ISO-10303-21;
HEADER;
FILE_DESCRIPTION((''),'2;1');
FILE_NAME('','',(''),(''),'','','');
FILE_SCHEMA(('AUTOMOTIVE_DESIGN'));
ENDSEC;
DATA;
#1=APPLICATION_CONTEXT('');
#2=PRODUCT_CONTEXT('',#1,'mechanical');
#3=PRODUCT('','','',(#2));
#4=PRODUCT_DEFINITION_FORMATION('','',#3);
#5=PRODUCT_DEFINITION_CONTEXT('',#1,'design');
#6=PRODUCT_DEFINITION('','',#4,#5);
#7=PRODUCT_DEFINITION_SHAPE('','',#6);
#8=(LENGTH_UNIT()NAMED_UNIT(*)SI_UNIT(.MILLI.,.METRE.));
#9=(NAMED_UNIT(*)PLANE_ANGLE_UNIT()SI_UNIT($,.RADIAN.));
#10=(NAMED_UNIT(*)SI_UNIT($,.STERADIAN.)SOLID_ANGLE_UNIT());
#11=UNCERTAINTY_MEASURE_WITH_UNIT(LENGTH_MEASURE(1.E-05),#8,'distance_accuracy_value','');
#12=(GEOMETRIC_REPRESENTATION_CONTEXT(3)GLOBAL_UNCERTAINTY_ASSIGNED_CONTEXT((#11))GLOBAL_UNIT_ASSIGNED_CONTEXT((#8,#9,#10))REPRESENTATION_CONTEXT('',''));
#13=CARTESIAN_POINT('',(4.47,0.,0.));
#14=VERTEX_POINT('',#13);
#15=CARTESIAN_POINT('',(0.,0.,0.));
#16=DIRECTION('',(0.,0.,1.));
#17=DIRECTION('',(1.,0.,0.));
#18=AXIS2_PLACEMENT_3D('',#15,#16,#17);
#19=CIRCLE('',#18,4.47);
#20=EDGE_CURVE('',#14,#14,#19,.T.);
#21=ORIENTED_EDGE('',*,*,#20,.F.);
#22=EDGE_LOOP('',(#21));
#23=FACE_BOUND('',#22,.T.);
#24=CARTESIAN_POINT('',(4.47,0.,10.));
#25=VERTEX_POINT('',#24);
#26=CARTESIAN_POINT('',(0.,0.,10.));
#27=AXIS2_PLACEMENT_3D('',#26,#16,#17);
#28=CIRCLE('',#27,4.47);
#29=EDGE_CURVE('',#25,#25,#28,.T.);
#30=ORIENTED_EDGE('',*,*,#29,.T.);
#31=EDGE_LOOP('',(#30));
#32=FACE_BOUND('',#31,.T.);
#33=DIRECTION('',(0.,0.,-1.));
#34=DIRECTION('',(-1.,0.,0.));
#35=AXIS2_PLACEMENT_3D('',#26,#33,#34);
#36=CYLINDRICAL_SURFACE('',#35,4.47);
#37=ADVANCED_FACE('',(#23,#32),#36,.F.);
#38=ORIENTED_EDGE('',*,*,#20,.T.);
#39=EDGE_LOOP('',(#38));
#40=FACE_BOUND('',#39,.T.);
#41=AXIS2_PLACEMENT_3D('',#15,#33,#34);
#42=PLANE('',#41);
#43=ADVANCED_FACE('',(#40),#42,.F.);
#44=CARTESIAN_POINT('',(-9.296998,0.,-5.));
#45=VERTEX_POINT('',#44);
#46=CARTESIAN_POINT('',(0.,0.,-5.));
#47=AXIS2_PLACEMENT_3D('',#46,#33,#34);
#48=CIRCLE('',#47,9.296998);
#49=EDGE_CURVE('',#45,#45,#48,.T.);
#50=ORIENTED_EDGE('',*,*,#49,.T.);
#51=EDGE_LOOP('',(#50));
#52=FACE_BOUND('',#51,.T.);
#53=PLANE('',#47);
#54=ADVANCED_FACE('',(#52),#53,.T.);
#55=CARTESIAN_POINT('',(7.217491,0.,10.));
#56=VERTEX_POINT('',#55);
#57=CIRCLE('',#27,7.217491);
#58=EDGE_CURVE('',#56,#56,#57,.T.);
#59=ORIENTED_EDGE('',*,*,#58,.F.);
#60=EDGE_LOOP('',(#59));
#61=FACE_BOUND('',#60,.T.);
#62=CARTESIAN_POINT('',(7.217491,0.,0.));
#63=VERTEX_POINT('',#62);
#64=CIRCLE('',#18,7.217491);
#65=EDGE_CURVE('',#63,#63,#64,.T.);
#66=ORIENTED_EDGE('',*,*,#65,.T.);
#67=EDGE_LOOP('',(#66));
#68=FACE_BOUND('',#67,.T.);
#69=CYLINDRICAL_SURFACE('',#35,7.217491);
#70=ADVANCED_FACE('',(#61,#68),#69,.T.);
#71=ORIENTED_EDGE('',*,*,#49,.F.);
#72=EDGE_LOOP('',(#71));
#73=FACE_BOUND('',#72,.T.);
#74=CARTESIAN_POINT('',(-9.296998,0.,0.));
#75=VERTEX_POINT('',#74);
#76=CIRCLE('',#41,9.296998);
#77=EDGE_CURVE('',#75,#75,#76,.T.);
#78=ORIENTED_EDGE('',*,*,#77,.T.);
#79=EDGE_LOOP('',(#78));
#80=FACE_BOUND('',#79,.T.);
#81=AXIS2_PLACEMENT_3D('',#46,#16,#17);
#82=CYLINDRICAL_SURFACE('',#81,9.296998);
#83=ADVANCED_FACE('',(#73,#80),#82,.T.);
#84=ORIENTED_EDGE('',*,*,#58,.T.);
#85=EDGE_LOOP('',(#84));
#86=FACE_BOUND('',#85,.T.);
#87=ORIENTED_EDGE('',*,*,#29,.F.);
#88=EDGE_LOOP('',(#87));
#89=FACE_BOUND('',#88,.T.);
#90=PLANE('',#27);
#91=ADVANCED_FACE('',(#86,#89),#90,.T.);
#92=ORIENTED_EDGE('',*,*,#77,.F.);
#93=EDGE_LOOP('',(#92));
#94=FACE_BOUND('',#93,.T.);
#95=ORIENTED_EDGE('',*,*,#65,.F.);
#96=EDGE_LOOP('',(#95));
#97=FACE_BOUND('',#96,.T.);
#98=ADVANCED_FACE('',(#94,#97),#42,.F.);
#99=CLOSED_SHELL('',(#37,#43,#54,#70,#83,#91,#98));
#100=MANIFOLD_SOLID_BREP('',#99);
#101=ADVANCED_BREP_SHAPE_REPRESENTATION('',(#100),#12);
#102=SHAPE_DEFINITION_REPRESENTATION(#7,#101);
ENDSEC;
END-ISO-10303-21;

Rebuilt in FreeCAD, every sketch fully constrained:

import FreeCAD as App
import Part
import Sketcher
from FreeCAD import Vector
Q = App.Units.Quantity

doc = App.newDocument("Part")
body = doc.addObject("PartDesign::Body", "Body")

sketch1 = body.newObject("Sketcher::SketchObject", "Sketch")
sketch1.AttachmentSupport = (doc.getObject("XY_Plane"), [""])
sketch1.MapMode = "FlatFace"
sketch1.addGeometry([
    Part.Circle(Vector(0, 0, 0), Vector(0, 0, 1), 7.2),
    Part.Circle(Vector(0, 0, 0), Vector(0, 0, 1), 4.5),
], False)
sketch1.addConstraint([
    Sketcher.Constraint("Coincident", 0, 3, -1, 1),
    Sketcher.Constraint("Coincident", 1, 3, -1, 1),
    Sketcher.Constraint("Diameter", 1, Q("8.94 mm")),
    Sketcher.Constraint("Diameter", 0, Q("14.434982 mm")),
])
pad1 = body.newObject("PartDesign::Pad", "Pad")
pad1.Profile = sketch1
pad1.Length = 10

sketch2 = body.newObject("Sketcher::SketchObject", "Sketch001")
sketch2.AttachmentSupport = (doc.getObject("XY_Plane"), [""])
sketch2.MapMode = "FlatFace"
sketch2.addGeometry(Part.Circle(Vector(0, 0, 0), Vector(0, 0, 1), 9), False)
sketch2.addConstraint([
    Sketcher.Constraint("Coincident", 0, 3, -1, 1),
    Sketcher.Constraint("Diameter", 0, Q("18.593996 mm")),
])
pad2 = body.newObject("PartDesign::Pad", "Pad001")
pad2.Profile = sketch2
pad2.Length = 5
pad2.Reversed = True

doc.recompute()
